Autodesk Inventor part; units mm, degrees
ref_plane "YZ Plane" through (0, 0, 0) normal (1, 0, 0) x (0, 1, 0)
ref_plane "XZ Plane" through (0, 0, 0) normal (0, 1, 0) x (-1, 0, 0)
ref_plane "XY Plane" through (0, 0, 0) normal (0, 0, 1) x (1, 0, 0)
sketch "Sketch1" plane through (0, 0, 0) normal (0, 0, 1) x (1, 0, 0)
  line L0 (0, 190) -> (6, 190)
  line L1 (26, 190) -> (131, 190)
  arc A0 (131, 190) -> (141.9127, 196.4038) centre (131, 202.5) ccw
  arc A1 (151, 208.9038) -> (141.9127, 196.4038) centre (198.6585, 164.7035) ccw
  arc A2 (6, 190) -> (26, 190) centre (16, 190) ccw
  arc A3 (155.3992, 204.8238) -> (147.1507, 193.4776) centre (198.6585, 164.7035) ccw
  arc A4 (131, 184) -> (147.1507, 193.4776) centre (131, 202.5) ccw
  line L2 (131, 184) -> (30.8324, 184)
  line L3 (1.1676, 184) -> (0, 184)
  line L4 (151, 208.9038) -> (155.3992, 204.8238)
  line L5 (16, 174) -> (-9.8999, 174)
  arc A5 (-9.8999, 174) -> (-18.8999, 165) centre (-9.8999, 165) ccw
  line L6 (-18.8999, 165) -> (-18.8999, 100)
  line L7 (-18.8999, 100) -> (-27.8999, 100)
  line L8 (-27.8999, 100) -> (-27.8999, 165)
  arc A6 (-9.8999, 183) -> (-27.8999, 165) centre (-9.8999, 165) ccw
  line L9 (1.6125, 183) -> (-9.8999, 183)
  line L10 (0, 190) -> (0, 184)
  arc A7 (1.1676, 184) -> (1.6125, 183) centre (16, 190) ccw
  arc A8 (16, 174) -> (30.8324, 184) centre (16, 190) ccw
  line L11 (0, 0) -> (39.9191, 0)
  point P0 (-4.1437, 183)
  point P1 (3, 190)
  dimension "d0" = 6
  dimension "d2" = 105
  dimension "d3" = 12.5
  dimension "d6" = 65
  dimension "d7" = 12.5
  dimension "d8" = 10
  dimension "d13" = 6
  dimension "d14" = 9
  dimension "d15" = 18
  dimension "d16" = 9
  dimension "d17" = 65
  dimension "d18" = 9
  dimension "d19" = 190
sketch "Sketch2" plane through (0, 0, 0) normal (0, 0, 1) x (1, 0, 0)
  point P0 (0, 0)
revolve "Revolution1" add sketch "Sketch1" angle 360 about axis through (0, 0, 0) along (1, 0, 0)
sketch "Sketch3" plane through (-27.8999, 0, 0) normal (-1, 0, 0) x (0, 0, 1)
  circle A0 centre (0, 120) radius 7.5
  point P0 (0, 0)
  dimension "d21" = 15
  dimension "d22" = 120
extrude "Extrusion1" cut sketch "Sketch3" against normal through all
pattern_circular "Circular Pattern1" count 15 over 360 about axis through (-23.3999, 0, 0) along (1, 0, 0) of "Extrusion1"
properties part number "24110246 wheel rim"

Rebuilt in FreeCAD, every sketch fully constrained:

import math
import FreeCAD as App
import Part
import Sketcher
Q = App.Units.Quantity

doc = App.newDocument("Part")
body = doc.addObject("PartDesign::Body", "Body")

sketch1 = body.newObject("Sketcher::SketchObject", "Sketch")
sketch1.AttachmentSupport = (doc.getObject("XY_Plane"), [""])
sketch1.MapMode = "FlatFace"
sketch1.addGeometry([
    Part.LineSegment(App.Vector(6, 190, 0), App.Vector(0, 190, 0)),
    Part.LineSegment(App.Vector(0, 190, 0), App.Vector(0, 184, 0)),
    Part.LineSegment(App.Vector(0, 184, 0), App.Vector(1.2, 184, 0)),
    Part.ArcOfCircle(Part.Circle(App.Vector(16, 190, 0), App.Vector(0, 0, 1), 16), math.radians(-157.98), math.radians(-154.06)),
    Part.LineSegment(App.Vector(1.6, 183, 0), App.Vector(-9.9, 183, 0)),
    Part.ArcOfCircle(Part.Circle(App.Vector(-9.9, 165, 0), App.Vector(0, 0, 1), 18), math.radians(90), math.radians(180)),
    Part.LineSegment(App.Vector(-27.9, 165, 0), App.Vector(-27.9, 100, 0)),
    Part.LineSegment(App.Vector(-27.9, 100, 0), App.Vector(-18.9, 100, 0)),
    Part.LineSegment(App.Vector(-18.9, 100, 0), App.Vector(-18.9, 165, 0)),
    Part.ArcOfCircle(Part.Circle(App.Vector(-9.9, 165, 0), App.Vector(0, 0, 1), 9), math.radians(90), math.radians(180)),
    Part.LineSegment(App.Vector(-9.9, 174, 0), App.Vector(16, 174, 0)),
    Part.ArcOfCircle(Part.Circle(App.Vector(16, 190, 0), App.Vector(0, 0, 1), 16), math.radians(-90), math.radians(-22)),
    Part.LineSegment(App.Vector(30.8, 184, 0), App.Vector(131, 184, 0)),
    Part.ArcOfCircle(Part.Circle(App.Vector(131, 202.5, 0), App.Vector(0, 0, 1), 18.5), math.radians(-90), math.radians(-29)),
    Part.ArcOfCircle(Part.Circle(App.Vector(198.7, 164.7, 0), App.Vector(0, 0, 1), 59), math.radians(137.16), math.radians(150.81)),
    Part.LineSegment(App.Vector(155.4, 204.8, 0), App.Vector(151, 208.9, 0)),
    Part.ArcOfCircle(Part.Circle(App.Vector(198.7, 164.7, 0), App.Vector(0, 0, 1), 65), math.radians(137.16), math.radians(150.81)),
    Part.ArcOfCircle(Part.Circle(App.Vector(131, 202.5, 0), App.Vector(0, 0, 1), 12.5), math.radians(-90), math.radians(-29)),
    Part.LineSegment(App.Vector(131, 190, 0), App.Vector(26, 190, 0)),
    Part.ArcOfCircle(Part.Circle(App.Vector(16, 190, 0), App.Vector(0, 0, 1), 10), math.radians(180), math.radians(360)),
], False)
sketch1.addConstraint([
    Sketcher.Constraint("Coincident", 0, 2, 1, 1),
    Sketcher.Constraint("Coincident", 1, 2, 2, 1),
    Sketcher.Constraint("Coincident", 2, 2, 3, 1),
    Sketcher.Constraint("Coincident", 3, 2, 4, 1),
    Sketcher.Constraint("Tangent", 4, 2, 5, 1),
    Sketcher.Constraint("Tangent", 5, 2, 6, 1),
    Sketcher.Constraint("Coincident", 6, 2, 7, 1),
    Sketcher.Constraint("Coincident", 7, 2, 8, 1),
    Sketcher.Constraint("Tangent", 8, 2, 9, 2),
    Sketcher.Constraint("Tangent", 9, 1, 10, 1),
    Sketcher.Constraint("Tangent", 10, 2, 11, 1),
    Sketcher.Constraint("Coincident", 11, 2, 12, 1),
    Sketcher.Constraint("Tangent", 12, 2, 13, 1),
    Sketcher.Constraint("Tangent", 13, 2, 14, 2),
    Sketcher.Constraint("Coincident", 14, 1, 15, 1),
    Sketcher.Constraint("Coincident", 15, 2, 16, 1),
    Sketcher.Constraint("Tangent", 16, 2, 17, 2),
    Sketcher.Constraint("Tangent", 17, 1, 18, 1),
    Sketcher.Constraint("Coincident", 18, 2, 19, 2),
    Sketcher.Constraint("Coincident", 19, 1, 0, 1),
    Sketcher.Constraint("Horizontal", 0),
    Sketcher.Constraint("Vertical", 1),
    Sketcher.Constraint("Horizontal", 2),
    Sketcher.Constraint("Horizontal", 4),
    Sketcher.Constraint("Vertical", 6),
    Sketcher.Constraint("Horizontal", 7),
    Sketcher.Constraint("Vertical", 8),
    Sketcher.Constraint("Horizontal", 10),
    Sketcher.Constraint("Horizontal", 12),
    Sketcher.Constraint("Horizontal", 18),
    Sketcher.Constraint("Coincident", 9, 3, 5, 3),
    Sketcher.Constraint("Coincident", 17, 3, 13, 3),
    Sketcher.Constraint("Coincident", 19, 3, 11, 3),
    Sketcher.Constraint("PointOnObject", 0, 2, -2),
    Sketcher.Constraint("Horizontal", 19, 3, 0, 2),
    Sketcher.Constraint("Horizontal", 2, 2, 11, 2),
    Sketcher.Constraint("Horizontal", 0, 2, 17, 1),
    Sketcher.Constraint("Equal", 0, 1),
    Sketcher.Constraint("Radius", 5, Q("18 mm")),
    Sketcher.Constraint("Radius", 9, Q("9 mm")),
    Sketcher.Constraint("Radius", 19, Q("10 mm")),
    Sketcher.Constraint("Radius", 17, Q("12.5 mm")),
    Sketcher.Constraint("DistanceX", 0, 2, 0, 1, Q("6 mm")),
    Sketcher.Constraint("DistanceX", 18, 2, 18, 1, Q("105 mm")),
    Sketcher.Constraint("DistanceY", 6, 2, 6, 1, Q("65 mm")),
    Sketcher.Constraint("Distance", 15, Q("6 mm")),
    Sketcher.Constraint("DistanceY", -1, 1, 11, 3, Q("190 mm")),
    Sketcher.Constraint("Radius", 11, Q("16 mm")),
    Sketcher.Constraint("DistanceY", 16, 2, 15, 2, Q("12.5 mm")),
    Sketcher.Constraint("DistanceX", 10, 1, 10, 2, Q("25.9 mm")),
    Sketcher.Constraint("DistanceX", -1, 1, 15, 2, Q("151 mm")),
    Sketcher.Constraint("Radius", 3, Q("16.0018 mm")),
    Sketcher.Constraint("Radius", 14, Q("58.9981 mm")),
    Sketcher.Constraint("Radius", 16, Q("64.9977 mm")),
    Sketcher.Constraint("DistanceX", 3, 2, 11, 2, Q("29.22 mm")),
    Sketcher.Constraint("DistanceY", 14, 1, 15, 2, Q("4.08 mm")),
    Sketcher.Constraint("DistanceX", 2, 1, 2, 2, Q("1.1676 mm")),
])
revolution = body.newObject("PartDesign::Revolution", "Revolution")
revolution.Profile = sketch1
revolution.ReferenceAxis = (sketch1, ["H_Axis"])
revolution.Angle = 360

sketch2 = body.newObject("Sketcher::SketchObject", "Sketch001")
sketch2.AttachmentSupport = (doc.getObject("YZ_Plane"), [""])
sketch2.MapMode = "FlatFace"
sketch2.AttachmentOffset = App.Placement(App.Vector(0, 0, -27.8999), App.Rotation())
sketch2.addGeometry(Part.Circle(App.Vector(120, 0, 0), App.Vector(0, 0, 1), 8), False)
sketch2.addConstraint([
    Sketcher.Constraint("PointOnObject", 0, 3, -1),
    Sketcher.Constraint("Diameter", 0, Q("15 mm")),
    Sketcher.Constraint("DistanceX", -1, 1, 0, 3, Q("120 mm")),
])
pocket1 = body.newObject("PartDesign::Pocket", "Pocket")
pocket1.Profile = sketch2
pocket1.Type = "ThroughAll"
pocket1.Reversed = True
doc.recompute()

polarpattern = body.newObject("PartDesign::PolarPattern", "PolarPattern")
polarpattern.Originals = [pocket1]
polarpattern.Axis = (doc.getObject("X_Axis"), [""])
polarpattern.Angle = 360
polarpattern.Occurrences = 15
body.Tip = polarpattern

doc.recompute()
